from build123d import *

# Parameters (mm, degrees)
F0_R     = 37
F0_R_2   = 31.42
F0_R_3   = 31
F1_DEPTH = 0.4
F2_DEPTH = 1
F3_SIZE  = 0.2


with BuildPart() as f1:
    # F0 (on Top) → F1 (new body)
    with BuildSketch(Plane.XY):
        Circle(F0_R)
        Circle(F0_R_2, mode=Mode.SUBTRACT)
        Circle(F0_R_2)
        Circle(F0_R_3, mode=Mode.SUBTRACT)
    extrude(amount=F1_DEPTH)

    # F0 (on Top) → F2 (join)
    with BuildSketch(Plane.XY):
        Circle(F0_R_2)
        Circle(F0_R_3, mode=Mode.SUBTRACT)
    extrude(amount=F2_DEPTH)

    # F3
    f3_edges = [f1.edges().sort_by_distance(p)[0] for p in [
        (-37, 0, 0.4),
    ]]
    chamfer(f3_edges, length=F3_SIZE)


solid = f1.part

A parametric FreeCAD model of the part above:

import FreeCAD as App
import Part
import Sketcher


def edges_at(feature, points):
    """Names of the edges that pass closest to the given points."""
    edges = feature.Shape.Edges
    near = lambda p: min(range(len(edges)), key=lambda i: edges[i].distToShape(Part.Vertex(*p))[0])
    return sorted({f"Edge{near(p) + 1}" for p in points})

doc = App.newDocument("Part")
body = doc.addObject("PartDesign::Body", "Body")

# Sketch on XY plane
sketch1 = body.newObject("Sketcher::SketchObject", "Sketch")
sketch1.AttachmentSupport = (doc.getObject("XY_Plane"), [""])
sketch1.MapMode = "FlatFace"
sketch1.addGeometry(Part.Circle(App.Vector(0, 0, 0), App.Vector(0, 0, 1), 37), False)
sketch1.addGeometry(Part.Circle(App.Vector(0, 0, 0), App.Vector(0, 0, 1), 31), False)
sketch1.addConstraint(Sketcher.Constraint("Coincident", 0, 3, -1, 1))
sketch1.addConstraint(Sketcher.Constraint("Coincident", 1, 3, -1, 1))
sketch1.addConstraint(Sketcher.Constraint("Diameter", 0, 74.0))
sketch1.addConstraint(Sketcher.Constraint("Diameter", 1, 62.0))
pad1 = body.newObject("PartDesign::Pad", "Pad")
pad1.Profile = sketch1
pad1.Length = 0.4

# Sketch on XY plane
sketch2 = body.newObject("Sketcher::SketchObject", "Sketch001")
sketch2.AttachmentSupport = (doc.getObject("XY_Plane"), [""])
sketch2.MapMode = "FlatFace"
sketch2.addGeometry(Part.Circle(App.Vector(0, 0, 0), App.Vector(0, 0, 1), 31), False)
sketch2.addGeometry(Part.Circle(App.Vector(0, 0, 0), App.Vector(0, 0, 1), 31), False)
sketch2.addConstraint(Sketcher.Constraint("Coincident", 0, 3, -1, 1))
sketch2.addConstraint(Sketcher.Constraint("Coincident", 1, 3, -1, 1))
sketch2.addConstraint(Sketcher.Constraint("Diameter", 1, 62.0))
sketch2.addConstraint(Sketcher.Constraint("Diameter", 0, 62.84))
pad2 = body.newObject("PartDesign::Pad", "Pad001")
pad2.Profile = sketch2
pad2.Length = 1
doc.recompute()

chamfer = body.newObject("PartDesign::Chamfer", "Chamfer")
chamfer.Base = (pad2, edges_at(pad2, [(-37, 0, 0.4)]))
chamfer.Size = 0.2

doc.recompute()
